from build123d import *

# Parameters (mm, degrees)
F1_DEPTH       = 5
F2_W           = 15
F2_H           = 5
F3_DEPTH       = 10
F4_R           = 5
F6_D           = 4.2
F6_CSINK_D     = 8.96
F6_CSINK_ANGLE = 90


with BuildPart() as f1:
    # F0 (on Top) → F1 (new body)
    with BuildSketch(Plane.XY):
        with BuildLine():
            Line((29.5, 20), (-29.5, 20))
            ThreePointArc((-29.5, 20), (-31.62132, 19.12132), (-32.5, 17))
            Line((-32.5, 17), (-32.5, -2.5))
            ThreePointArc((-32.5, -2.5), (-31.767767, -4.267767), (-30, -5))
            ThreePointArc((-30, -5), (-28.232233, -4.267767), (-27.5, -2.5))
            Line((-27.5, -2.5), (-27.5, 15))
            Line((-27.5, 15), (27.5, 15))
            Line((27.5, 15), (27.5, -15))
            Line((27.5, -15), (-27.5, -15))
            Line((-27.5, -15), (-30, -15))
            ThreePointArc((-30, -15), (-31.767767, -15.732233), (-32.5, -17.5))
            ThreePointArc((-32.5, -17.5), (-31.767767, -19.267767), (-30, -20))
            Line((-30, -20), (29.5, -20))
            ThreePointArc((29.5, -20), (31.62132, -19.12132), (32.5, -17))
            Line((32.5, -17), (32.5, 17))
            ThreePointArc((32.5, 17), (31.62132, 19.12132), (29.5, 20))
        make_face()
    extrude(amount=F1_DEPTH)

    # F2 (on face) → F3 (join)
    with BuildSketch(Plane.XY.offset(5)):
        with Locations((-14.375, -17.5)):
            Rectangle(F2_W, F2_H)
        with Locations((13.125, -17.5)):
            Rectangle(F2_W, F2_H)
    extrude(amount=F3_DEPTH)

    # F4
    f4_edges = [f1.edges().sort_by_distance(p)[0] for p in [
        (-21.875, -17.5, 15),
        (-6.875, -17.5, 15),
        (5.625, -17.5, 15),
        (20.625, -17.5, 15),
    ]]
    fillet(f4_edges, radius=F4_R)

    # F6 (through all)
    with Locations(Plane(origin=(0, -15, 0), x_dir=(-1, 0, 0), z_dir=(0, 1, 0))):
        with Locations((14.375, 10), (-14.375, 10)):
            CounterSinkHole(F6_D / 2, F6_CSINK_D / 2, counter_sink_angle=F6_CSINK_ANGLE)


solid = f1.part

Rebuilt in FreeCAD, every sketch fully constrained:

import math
import FreeCAD as App
import Part
import Sketcher
Q = App.Units.Quantity


def edges_at(feature, points):
    """Names of the edges that pass closest to the given points."""
    edges = feature.Shape.Edges
    near = lambda p: min(range(len(edges)), key=lambda i: edges[i].distToShape(Part.Vertex(*p))[0])
    return sorted({f"Edge{near(p) + 1}" for p in points})


def add_polygon(sketch, points):
    """Adds a closed chain of lines whose ends are joined by coincident constraints."""
    first, n = sketch.GeometryCount, len(points)
    for a, b in zip(points, points[1:] + points[:1]):
        sketch.addGeometry(Part.LineSegment(App.Vector(*a, 0), App.Vector(*b, 0)), False)
    for i in range(n):
        sketch.addConstraint(Sketcher.Constraint("Coincident", first + i, 2, first + (i + 1) % n, 1))

doc = App.newDocument("Part")
body = doc.addObject("PartDesign::Body", "Body")

sketch1 = doc.addObject("Sketcher::SketchObject", "Sketch")
body.addObject(sketch1)
sketch1.AttachmentSupport = (doc.XY_Plane, [""])
sketch1.MapMode = "FlatFace"
sketch1.addGeometry([
    Part.LineSegment(App.Vector(29.5, 20, 0), App.Vector(-29.5, 20, 0)),
    Part.ArcOfCircle(Part.Circle(App.Vector(-29.5, 17, 0), App.Vector(0, 0, 1), 3), math.radians(90), math.radians(180)),
    Part.LineSegment(App.Vector(-32.5, 17, 0), App.Vector(-32.5, -2.5, 0)),
    Part.ArcOfCircle(Part.Circle(App.Vector(-30, -2.5, 0), App.Vector(0, 0, 1), 2.5), math.radians(180), math.radians(270)),
    Part.ArcOfCircle(Part.Circle(App.Vector(-30, -2.5, 0), App.Vector(0, 0, 1), 2.5), math.radians(-90), math.radians(0)),
    Part.LineSegment(App.Vector(-27.5, -2.5, 0), App.Vector(-27.5, 15, 0)),
    Part.LineSegment(App.Vector(-27.5, 15, 0), App.Vector(27.5, 15, 0)),
    Part.LineSegment(App.Vector(27.5, 15, 0), App.Vector(27.5, -15, 0)),
    Part.LineSegment(App.Vector(27.5, -15, 0), App.Vector(-30, -15, 0)),
    Part.ArcOfCircle(Part.Circle(App.Vector(-30, -17.5, 0), App.Vector(0, 0, 1), 2.5), math.radians(90), math.radians(180)),
    Part.ArcOfCircle(Part.Circle(App.Vector(-30, -17.5, 0), App.Vector(0, 0, 1), 2.5), math.radians(180), math.radians(270)),
    Part.LineSegment(App.Vector(-30, -20, 0), App.Vector(29.5, -20, 0)),
    Part.ArcOfCircle(Part.Circle(App.Vector(29.5, -17, 0), App.Vector(0, 0, 1), 3), math.radians(-90), math.radians(0)),
    Part.LineSegment(App.Vector(32.5, -17, 0), App.Vector(32.5, 17, 0)),
    Part.ArcOfCircle(Part.Circle(App.Vector(29.5, 17, 0), App.Vector(0, 0, 1), 3), math.radians(0), math.radians(90)),
], False)
sketch1.addConstraint([
    Sketcher.Constraint("Tangent", 0, 2, 1, 1),
    Sketcher.Constraint("Tangent", 1, 2, 2, 1),
    Sketcher.Constraint("Tangent", 2, 2, 3, 1),
    Sketcher.Constraint("Tangent", 3, 2, 4, 1),
    Sketcher.Constraint("Tangent", 4, 2, 5, 1),
    Sketcher.Constraint("Coincident", 5, 2, 6, 1),
    Sketcher.Constraint("Coincident", 6, 2, 7, 1),
    Sketcher.Constraint("Coincident", 7, 2, 8, 1),
    Sketcher.Constraint("Tangent", 8, 2, 9, 1),
    Sketcher.Constraint("Tangent", 9, 2, 10, 1),
    Sketcher.Constraint("Tangent", 10, 2, 11, 1),
    Sketcher.Constraint("Tangent", 11, 2, 12, 1),
    Sketcher.Constraint("Tangent", 12, 2, 13, 1),
    Sketcher.Constraint("Tangent", 13, 2, 14, 1),
    Sketcher.Constraint("Tangent", 14, 2, 0, 1),
    Sketcher.Constraint("Horizontal", 0),
    Sketcher.Constraint("Vertical", 2),
    Sketcher.Constraint("Vertical", 5),
    Sketcher.Constraint("Horizontal", 6),
    Sketcher.Constraint("Vertical", 7),
    Sketcher.Constraint("Horizontal", 8),
    Sketcher.Constraint("Horizontal", 11),
    Sketcher.Constraint("Vertical", 13),
    Sketcher.Constraint("Equal", 3, 4),
    Sketcher.Constraint("Equal", 4, 9),
    Sketcher.Constraint("Equal", 9, 10),
    Sketcher.Constraint("Equal", 1, 12),
    Sketcher.Constraint("Equal", 12, 14),
    Sketcher.Constraint("Symmetric", 1, 3, 12, 3, -1, 1),
    Sketcher.Constraint("Symmetric", 5, 2, 7, 2, -1, 1),
    Sketcher.Constraint("Horizontal", 10, 3, 9, 2),
    Sketcher.Constraint("Vertical", 4, 3, 9, 3),
    Sketcher.Constraint("Vertical", 10, 3, 3, 2),
    Sketcher.Constraint("Radius", 1, Q("3.000001 mm")),
    Sketcher.Constraint("Radius", 3, Q("2.5 mm")),
    Sketcher.Constraint("DistanceX", 0, 2, 0, 1, Q("59 mm")),
    Sketcher.Constraint("DistanceY", 7, 2, 7, 1, Q("30 mm")),
    Sketcher.Constraint("DistanceY", 2, 2, 2, 1, Q("19.5 mm")),
])
pad1 = doc.addObject("PartDesign::Pad", "Pad")
body.addObject(pad1)
pad1.Profile = sketch1
pad1.Length = 5

sketch2 = doc.addObject("Sketcher::SketchObject", "Sketch001")
body.addObject(sketch2)
sketch2.AttachmentSupport = (doc.XY_Plane, [""])
sketch2.MapMode = "FlatFace"
sketch2.AttachmentOffset = App.Placement(App.Vector(0, 0, 5), App.Rotation())
add_polygon(sketch2, [(-22, -15), (-22, -20), (-7, -20), (-7, -15)])
add_polygon(sketch2, [(6, -15), (6, -20), (21, -20), (21, -15)])
sketch2.addConstraint([
    Sketcher.Constraint("Vertical", 0),
    Sketcher.Constraint("Horizontal", 1),
    Sketcher.Constraint("Vertical", 2),
    Sketcher.Constraint("Horizontal", 3),
    Sketcher.Constraint("Vertical", 4),
    Sketcher.Constraint("Horizontal", 5),
    Sketcher.Constraint("Vertical", 6),
    Sketcher.Constraint("Horizontal", 7),
    Sketcher.Constraint("Horizontal", 1, 2, 4, 2),
    Sketcher.Constraint("Horizontal", 3, 2, 6, 2),
    Sketcher.Constraint("Equal", 3, 5),
    Sketcher.Constraint("DistanceX", 1, 1, 1, 2, Q("15 mm")),
    Sketcher.Constraint("DistanceY", 0, 2, 0, 1, Q("5 mm")),
    Sketcher.Constraint("DistanceY", 0, 2, -1, 1, Q("20 mm")),
    Sketcher.Constraint("DistanceX", 1, 2, 4, 2, Q("12.5 mm")),
    Sketcher.Constraint("DistanceX", 0, 2, -1, 1, Q("21.875 mm")),
])
pad2 = doc.addObject("PartDesign::Pad", "Pad001")
body.addObject(pad2)
pad2.Profile = sketch2
pad2.Length = 10
doc.recompute()

fillet = doc.addObject("PartDesign::Fillet", "Fillet")
body.addObject(fillet)
fillet.Base = (pad2, edges_at(pad2, [
    (-21.875, -17.5, 15),
    (-6.875, -17.5, 15),
    (5.625, -17.5, 15),
    (20.625, -17.5, 15),
]))
fillet.Radius = 5

sketch3 = doc.addObject("Sketcher::SketchObject", "Sketch002")
body.addObject(sketch3)
sketch3.AttachmentSupport = (doc.XZ_Plane, [""])
sketch3.MapMode = "FlatFace"
sketch3.AttachmentOffset = App.Placement(App.Vector(0, 0, 15), App.Rotation())
sketch3.addGeometry([
    Part.Circle(App.Vector(-14.4, 10, 0), App.Vector(0, 0, 1), 2.1),
    Part.Circle(App.Vector(14.4, 10, 0), App.Vector(0, 0, 1), 2.1),
], False)
sketch3.addConstraint([
    Sketcher.Constraint("Equal", 0, 1),
    Sketcher.Constraint("Symmetric", 0, 3, 1, 3, -2),
    Sketcher.Constraint("Diameter", 0, Q("4.2 mm")),
    Sketcher.Constraint("DistanceY", -1, 1, 0, 3, Q("10 mm")),
    Sketcher.Constraint("DistanceX", 0, 3, 1, 3, Q("28.75 mm")),
])
doc.recompute()
hole = doc.addObject("PartDesign::Hole", "Hole")
body.addObject(hole)
hole.Profile = sketch3
hole.ThreadType = "None"
hole.Diameter = 4.2
hole.DepthType = "ThroughAll"
hole.HoleCutType = "Countersink"
hole.HoleCutDiameter = 8.96
hole.HoleCutCountersinkAngle = 90
hole.Reversed = True

doc.recompute()
